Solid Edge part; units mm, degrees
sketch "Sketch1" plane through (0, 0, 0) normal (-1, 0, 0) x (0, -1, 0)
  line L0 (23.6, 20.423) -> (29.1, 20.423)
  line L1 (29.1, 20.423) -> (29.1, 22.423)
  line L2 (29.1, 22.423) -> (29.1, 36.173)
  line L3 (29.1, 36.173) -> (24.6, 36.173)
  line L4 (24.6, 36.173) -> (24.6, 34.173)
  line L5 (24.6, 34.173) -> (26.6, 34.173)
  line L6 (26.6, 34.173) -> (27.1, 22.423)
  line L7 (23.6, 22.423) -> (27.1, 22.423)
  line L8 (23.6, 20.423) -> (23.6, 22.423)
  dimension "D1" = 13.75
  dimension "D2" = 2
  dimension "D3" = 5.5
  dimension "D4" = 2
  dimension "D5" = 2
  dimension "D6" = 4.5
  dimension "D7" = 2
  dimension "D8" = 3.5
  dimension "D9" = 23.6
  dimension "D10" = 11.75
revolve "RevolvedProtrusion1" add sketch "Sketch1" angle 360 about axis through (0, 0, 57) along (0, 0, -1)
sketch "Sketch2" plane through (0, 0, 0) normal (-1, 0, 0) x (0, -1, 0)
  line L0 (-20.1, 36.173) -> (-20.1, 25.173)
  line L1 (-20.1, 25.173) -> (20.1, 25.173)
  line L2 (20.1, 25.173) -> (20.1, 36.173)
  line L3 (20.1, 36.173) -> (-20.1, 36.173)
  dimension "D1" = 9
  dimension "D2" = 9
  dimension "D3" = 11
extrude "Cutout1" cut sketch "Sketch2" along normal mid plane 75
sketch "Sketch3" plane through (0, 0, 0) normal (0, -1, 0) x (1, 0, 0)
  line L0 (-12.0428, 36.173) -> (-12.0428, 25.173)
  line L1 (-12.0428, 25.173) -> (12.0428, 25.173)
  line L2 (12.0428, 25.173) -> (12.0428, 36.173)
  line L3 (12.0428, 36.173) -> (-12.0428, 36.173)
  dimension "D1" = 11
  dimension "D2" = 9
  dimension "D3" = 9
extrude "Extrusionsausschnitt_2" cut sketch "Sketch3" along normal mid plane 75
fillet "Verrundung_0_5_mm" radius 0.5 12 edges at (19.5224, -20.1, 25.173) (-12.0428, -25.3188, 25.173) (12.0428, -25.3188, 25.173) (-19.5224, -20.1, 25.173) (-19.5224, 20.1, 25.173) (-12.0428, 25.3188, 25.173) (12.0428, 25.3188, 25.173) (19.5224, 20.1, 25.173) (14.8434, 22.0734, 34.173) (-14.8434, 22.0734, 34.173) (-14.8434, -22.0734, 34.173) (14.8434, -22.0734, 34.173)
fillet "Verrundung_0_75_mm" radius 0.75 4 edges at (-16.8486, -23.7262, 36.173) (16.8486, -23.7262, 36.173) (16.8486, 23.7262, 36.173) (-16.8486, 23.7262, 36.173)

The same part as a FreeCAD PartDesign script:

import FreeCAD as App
import Part
import Sketcher
from FreeCAD import Vector


def edges_at(feature, points):
    """Names of the edges that pass closest to the given points."""
    edges = feature.Shape.Edges
    near = lambda p: min(range(len(edges)), key=lambda i: edges[i].distToShape(Part.Vertex(*p))[0])
    return sorted({f"Edge{near(p) + 1}" for p in points})

doc = App.newDocument("Part")
body = doc.addObject("PartDesign::Body", "Body")

# Sketch on YZ plane
sketch1 = doc.addObject("Sketcher::SketchObject", "Sketch")
body.addObject(sketch1)
sketch1.AttachmentSupport = (doc.YZ_Plane, [""])
sketch1.MapMode = "FlatFace"
sketch1.addGeometry(Part.LineSegment(Vector(-23.6, 22.4, 0), Vector(-23.6, 20.4, 0)), False)
sketch1.addGeometry(Part.LineSegment(Vector(-23.6, 20.4, 0), Vector(-29.1, 20.4, 0)), False)
sketch1.addGeometry(Part.LineSegment(Vector(-29.1, 20.4, 0), Vector(-29.1, 36.2, 0)), False)
sketch1.addGeometry(Part.LineSegment(Vector(-29.1, 36.2, 0), Vector(-24.6, 36.2, 0)), False)
sketch1.addGeometry(Part.LineSegment(Vector(-24.6, 36.2, 0), Vector(-24.6, 34.2, 0)), False)
sketch1.addGeometry(Part.LineSegment(Vector(-24.6, 34.2, 0), Vector(-26.6, 34.2, 0)), False)
sketch1.addGeometry(Part.LineSegment(Vector(-26.6, 34.2, 0), Vector(-27.1, 22.4, 0)), False)
sketch1.addGeometry(Part.LineSegment(Vector(-27.1, 22.4, 0), Vector(-23.6, 22.4, 0)), False)
sketch1.addConstraint(Sketcher.Constraint("Coincident", 0, 2, 1, 1))
sketch1.addConstraint(Sketcher.Constraint("Coincident", 1, 2, 2, 1))
sketch1.addConstraint(Sketcher.Constraint("Coincident", 2, 2, 3, 1))
sketch1.addConstraint(Sketcher.Constraint("Coincident", 3, 2, 4, 1))
sketch1.addConstraint(Sketcher.Constraint("Coincident", 4, 2, 5, 1))
sketch1.addConstraint(Sketcher.Constraint("Coincident", 5, 2, 6, 1))
sketch1.addConstraint(Sketcher.Constraint("Coincident", 6, 2, 7, 1))
sketch1.addConstraint(Sketcher.Constraint("Coincident", 7, 2, 0, 1))
sketch1.addConstraint(Sketcher.Constraint("Vertical", 0))
sketch1.addConstraint(Sketcher.Constraint("Horizontal", 1))
sketch1.addConstraint(Sketcher.Constraint("Vertical", 2))
sketch1.addConstraint(Sketcher.Constraint("Horizontal", 3))
sketch1.addConstraint(Sketcher.Constraint("Vertical", 4))
sketch1.addConstraint(Sketcher.Constraint("Horizontal", 5))
sketch1.addConstraint(Sketcher.Constraint("Horizontal", 7))
sketch1.addConstraint(Sketcher.Constraint("Equal", 5, 0))
sketch1.addConstraint(Sketcher.Constraint("Equal", 0, 4))
sketch1.addConstraint(Sketcher.Constraint("DistanceX", 0, 2, -1, 1, 23.6))
sketch1.addConstraint(Sketcher.Constraint("DistanceX", 1, 2, -1, 1, 29.1))
sketch1.addConstraint(Sketcher.Constraint("DistanceX", 3, 2, -1, 1, 24.6))
sketch1.addConstraint(Sketcher.Constraint("DistanceX", 5, 2, 5, 1, 2.0))
sketch1.addConstraint(Sketcher.Constraint("DistanceX", 7, 1, 7, 2, 3.5))
sketch1.addConstraint(Sketcher.Constraint("DistanceY", 2, 1, 2, 2, 15.75))
sketch1.addConstraint(Sketcher.Constraint("DistanceY", -1, 1, 0, 2, 20.423))
revolution = doc.addObject("PartDesign::Revolution", "Revolution")
body.addObject(revolution)
revolution.Profile = sketch1
revolution.ReferenceAxis = (sketch1, ["V_Axis"])
revolution.Angle = 360

# Sketch on YZ plane
sketch2 = doc.addObject("Sketcher::SketchObject", "Sketch001")
body.addObject(sketch2)
sketch2.AttachmentSupport = (doc.YZ_Plane, [""])
sketch2.MapMode = "FlatFace"
sketch2.addGeometry(Part.LineSegment(Vector(-20, 36, 0), Vector(20, 36, 0)), False)
sketch2.addGeometry(Part.LineSegment(Vector(20, 36, 0), Vector(20, 25, 0)), False)
sketch2.addGeometry(Part.LineSegment(Vector(20, 25, 0), Vector(-20, 25, 0)), False)
sketch2.addGeometry(Part.LineSegment(Vector(-20, 25, 0), Vector(-20, 36, 0)), False)
sketch2.addConstraint(Sketcher.Constraint("Coincident", 0, 2, 1, 1))
sketch2.addConstraint(Sketcher.Constraint("Coincident", 1, 2, 2, 1))
sketch2.addConstraint(Sketcher.Constraint("Coincident", 2, 2, 3, 1))
sketch2.addConstraint(Sketcher.Constraint("Coincident", 3, 2, 0, 1))
sketch2.addConstraint(Sketcher.Constraint("Horizontal", 0))
sketch2.addConstraint(Sketcher.Constraint("Vertical", 1))
sketch2.addConstraint(Sketcher.Constraint("Horizontal", 2))
sketch2.addConstraint(Sketcher.Constraint("Vertical", 3))
sketch2.addConstraint(Sketcher.Constraint("DistanceX", -1, 1, 0, 2, 20.1))
sketch2.addConstraint(Sketcher.Constraint("DistanceX", 2, 2, -1, 1, 20.1))
sketch2.addConstraint(Sketcher.Constraint("DistanceY", 1, 2, 1, 1, 11.0))
sketch2.addConstraint(Sketcher.Constraint("DistanceY", -1, 1, 0, 2, 36.173))
pocket1 = doc.addObject("PartDesign::Pocket", "Pocket")
body.addObject(pocket1)
pocket1.Profile = sketch2
pocket1.Length = 75
pocket1.Midplane = True

# Sketch on XZ plane
sketch3 = doc.addObject("Sketcher::SketchObject", "Sketch002")
body.addObject(sketch3)
sketch3.AttachmentSupport = (doc.XZ_Plane, [""])
sketch3.MapMode = "FlatFace"
sketch3.addGeometry(Part.LineSegment(Vector(12, 36, 0), Vector(-12, 36, 0)), False)
sketch3.addGeometry(Part.LineSegment(Vector(-12, 36, 0), Vector(-12, 25, 0)), False)
sketch3.addGeometry(Part.LineSegment(Vector(-12, 25, 0), Vector(12, 25, 0)), False)
sketch3.addGeometry(Part.LineSegment(Vector(12, 25, 0), Vector(12, 36, 0)), False)
sketch3.addConstraint(Sketcher.Constraint("Coincident", 0, 2, 1, 1))
sketch3.addConstraint(Sketcher.Constraint("Coincident", 1, 2, 2, 1))
sketch3.addConstraint(Sketcher.Constraint("Coincident", 2, 2, 3, 1))
sketch3.addConstraint(Sketcher.Constraint("Coincident", 3, 2, 0, 1))
sketch3.addConstraint(Sketcher.Constraint("Horizontal", 0))
sketch3.addConstraint(Sketcher.Constraint("Vertical", 1))
sketch3.addConstraint(Sketcher.Constraint("Horizontal", 2))
sketch3.addConstraint(Sketcher.Constraint("Vertical", 3))
sketch3.addConstraint(Sketcher.Constraint("DistanceY", 1, 2, 1, 1, 11.0))
sketch3.addConstraint(Sketcher.Constraint("DistanceX", 0, 2, -1, 1, 12.0428))
sketch3.addConstraint(Sketcher.Constraint("DistanceX", -1, 1, 2, 2, 12.0428))
sketch3.addConstraint(Sketcher.Constraint("DistanceY", -1, 1, 0, 2, 36.173))
pocket2 = doc.addObject("PartDesign::Pocket", "Pocket001")
body.addObject(pocket2)
pocket2.Profile = sketch3
pocket2.Length = 75
pocket2.Midplane = True
doc.recompute()

fillet = doc.addObject("PartDesign::Fillet", "Fillet")
body.addObject(fillet)
fillet.Base = (pocket2, edges_at(pocket2, [
    (19.522, -20.1, 25.173),
    (-12.043, -25.319, 25.173),
    (12.043, -25.319, 25.173),
    (-19.522, -20.1, 25.173),
    (-19.522, 20.1, 25.173),
    (-12.043, 25.319, 25.173),
    (12.043, 25.319, 25.173),
    (19.522, 20.1, 25.173),
    (14.843, 22.073, 34.173),
    (-14.843, 22.073, 34.173),
    (-14.843, -22.073, 34.173),
    (14.843, -22.073, 34.173),
]))
fillet.Radius = 0.5
doc.recompute()

fillet2 = doc.addObject("PartDesign::Fillet", "Fillet001")
body.addObject(fillet2)
fillet2.Base = (fillet, edges_at(fillet, [
    (-16.849, -23.726, 36.173),
    (16.849, -23.726, 36.173),
    (16.849, 23.726, 36.173),
    (-16.849, 23.726, 36.173),
]))
fillet2.Radius = 0.75

doc.recompute()
